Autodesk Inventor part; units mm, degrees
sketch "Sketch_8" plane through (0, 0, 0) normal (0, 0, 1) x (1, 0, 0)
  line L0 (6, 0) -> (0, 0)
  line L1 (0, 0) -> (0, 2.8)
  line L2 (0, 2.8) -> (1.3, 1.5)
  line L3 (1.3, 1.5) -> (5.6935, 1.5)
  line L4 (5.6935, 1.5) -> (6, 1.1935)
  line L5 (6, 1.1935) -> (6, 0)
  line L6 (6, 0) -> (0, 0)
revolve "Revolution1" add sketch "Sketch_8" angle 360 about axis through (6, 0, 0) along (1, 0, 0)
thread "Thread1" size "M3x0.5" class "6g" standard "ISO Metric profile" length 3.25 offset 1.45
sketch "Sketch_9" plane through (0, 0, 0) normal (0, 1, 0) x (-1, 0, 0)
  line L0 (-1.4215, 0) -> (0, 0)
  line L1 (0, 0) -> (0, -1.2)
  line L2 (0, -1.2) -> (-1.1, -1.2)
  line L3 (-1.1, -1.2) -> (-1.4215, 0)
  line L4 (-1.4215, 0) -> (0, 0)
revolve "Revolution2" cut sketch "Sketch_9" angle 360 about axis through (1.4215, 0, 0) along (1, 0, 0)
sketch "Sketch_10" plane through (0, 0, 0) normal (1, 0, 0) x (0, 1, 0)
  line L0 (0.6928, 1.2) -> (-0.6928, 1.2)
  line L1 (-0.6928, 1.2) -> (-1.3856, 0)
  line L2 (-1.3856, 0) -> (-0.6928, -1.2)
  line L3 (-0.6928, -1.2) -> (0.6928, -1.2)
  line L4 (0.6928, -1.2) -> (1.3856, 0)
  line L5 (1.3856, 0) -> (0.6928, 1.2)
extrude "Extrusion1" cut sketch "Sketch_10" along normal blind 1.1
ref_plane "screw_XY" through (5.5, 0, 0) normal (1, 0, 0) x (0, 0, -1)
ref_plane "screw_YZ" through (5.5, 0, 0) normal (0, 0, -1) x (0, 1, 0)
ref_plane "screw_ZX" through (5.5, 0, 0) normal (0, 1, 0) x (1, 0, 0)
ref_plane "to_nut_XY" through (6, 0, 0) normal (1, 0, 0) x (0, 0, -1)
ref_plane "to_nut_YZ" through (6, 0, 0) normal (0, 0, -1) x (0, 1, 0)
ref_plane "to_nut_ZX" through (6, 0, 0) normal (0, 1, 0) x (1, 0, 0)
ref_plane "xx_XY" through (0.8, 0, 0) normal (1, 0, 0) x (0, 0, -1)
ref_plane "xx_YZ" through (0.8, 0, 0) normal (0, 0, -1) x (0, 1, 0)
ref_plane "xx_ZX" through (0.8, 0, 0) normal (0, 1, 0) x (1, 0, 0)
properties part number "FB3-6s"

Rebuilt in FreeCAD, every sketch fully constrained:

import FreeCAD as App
import Part
import Sketcher
Q = App.Units.Quantity


def add_polygon(sketch, points):
    """Adds a closed chain of lines whose ends are joined by coincident constraints."""
    first, n = sketch.GeometryCount, len(points)
    for a, b in zip(points, points[1:] + points[:1]):
        sketch.addGeometry(Part.LineSegment(App.Vector(*a, 0), App.Vector(*b, 0)), False)
    for i in range(n):
        sketch.addConstraint(Sketcher.Constraint("Coincident", first + i, 2, first + (i + 1) % n, 1))

doc = App.newDocument("Part")
body = doc.addObject("PartDesign::Body", "Body")

# Sketch on XY plane
sketch1 = doc.addObject("Sketcher::SketchObject", "Sketch")
body.addObject(sketch1)
sketch1.AttachmentSupport = (doc.XY_Plane, [""])
sketch1.MapMode = "FlatFace"
add_polygon(sketch1, [(0, 0), (6, 0), (6, 1.19), (5.69, 1.5), (1.3, 1.5), (0, 2.8)])  # lines 0-5
sketch1.addConstraint([
    Sketcher.Constraint("Horizontal", 0),
    Sketcher.Constraint("Vertical", 1),
    Sketcher.Constraint("Horizontal", 3),
    Sketcher.Constraint("Vertical", 5),
    Sketcher.Constraint("Coincident", 5, 2, -1, 1),
    Sketcher.Constraint("Parallel", 2, 4),
    Sketcher.Constraint("DistanceX", 0, 1, 0, 2, Q("6 mm")),
    Sketcher.Constraint("Angle", 2, Q("135 deg")),
    Sketcher.Constraint("DistanceY", 5, 2, 5, 1, Q("2.8 mm")),
    Sketcher.Constraint("DistanceY", -1, 1, 2, 2, Q("1.5 mm")),
    Sketcher.Constraint("DistanceX", 3, 2, 3, 1, Q("4.3935 mm")),
])
revolution = doc.addObject("PartDesign::Revolution", "Revolution")
body.addObject(revolution)
revolution.Profile = sketch1
revolution.ReferenceAxis = (sketch1, ["H_Axis"])
revolution.Angle = 360

# Sketch on XZ plane
sketch2 = doc.addObject("Sketcher::SketchObject", "Sketch001")
body.addObject(sketch2)
sketch2.AttachmentSupport = (doc.XZ_Plane, [""])
sketch2.MapMode = "FlatFace"
add_polygon(sketch2, [(0, 0), (1.4, 0), (1.1, -1.2), (0, -1.2)])  # lines 0-3
sketch2.addConstraint([
    Sketcher.Constraint("Horizontal", 0),
    Sketcher.Constraint("Horizontal", 2),
    Sketcher.Constraint("Vertical", 3),
    Sketcher.Constraint("Coincident", 3, 2, -1, 1),
    Sketcher.Constraint("DistanceX", 2, 2, 2, 1, Q("1.1 mm")),
    Sketcher.Constraint("DistanceY", 3, 1, 3, 2, Q("1.2 mm")),
    Sketcher.Constraint("DistanceX", 0, 1, 0, 2, Q("1.4215 mm")),
])
groove = doc.addObject("PartDesign::Groove", "Groove")
body.addObject(groove)
groove.Profile = sketch2
groove.ReferenceAxis = (sketch2, ["H_Axis"])
groove.Angle = 360

# Sketch on YZ plane
sketch3 = doc.addObject("Sketcher::SketchObject", "Sketch002")
body.addObject(sketch3)
sketch3.AttachmentSupport = (doc.YZ_Plane, [""])
sketch3.MapMode = "FlatFace"
add_polygon(sketch3, [(1.4, 0), (0.7, 1.2), (-0.7, 1.2), (-1.4, 0), (-0.7, -1.2), (0.7, -1.2)])  # lines 0-5
sketch3.addConstraint([
    Sketcher.Constraint("Horizontal", 1),
    Sketcher.Constraint("Horizontal", 4),
    Sketcher.Constraint("Symmetric", 0, 2, 3, 2, -1, 1),
    Sketcher.Constraint("Symmetric", 2, 2, 5, 2, -1, 1),
    Sketcher.Constraint("PointOnObject", 2, 2, -1),
    Sketcher.Constraint("Parallel", 2, 5),
    Sketcher.Constraint("Vertical", 1, 2, 3, 2),
    Sketcher.Constraint("Angle", 0, Q("119.9993 deg")),
    Sketcher.Constraint("DistanceY", -1, 1, 0, 2, Q("1.2 mm")),
    Sketcher.Constraint("DistanceX", 1, 2, 1, 1, Q("1.3856 mm")),
])
pocket1 = doc.addObject("PartDesign::Pocket", "Pocket")
body.addObject(pocket1)
pocket1.Profile = sketch3
pocket1.Length = 1.1
pocket1.Reversed = True

doc.recompute()
